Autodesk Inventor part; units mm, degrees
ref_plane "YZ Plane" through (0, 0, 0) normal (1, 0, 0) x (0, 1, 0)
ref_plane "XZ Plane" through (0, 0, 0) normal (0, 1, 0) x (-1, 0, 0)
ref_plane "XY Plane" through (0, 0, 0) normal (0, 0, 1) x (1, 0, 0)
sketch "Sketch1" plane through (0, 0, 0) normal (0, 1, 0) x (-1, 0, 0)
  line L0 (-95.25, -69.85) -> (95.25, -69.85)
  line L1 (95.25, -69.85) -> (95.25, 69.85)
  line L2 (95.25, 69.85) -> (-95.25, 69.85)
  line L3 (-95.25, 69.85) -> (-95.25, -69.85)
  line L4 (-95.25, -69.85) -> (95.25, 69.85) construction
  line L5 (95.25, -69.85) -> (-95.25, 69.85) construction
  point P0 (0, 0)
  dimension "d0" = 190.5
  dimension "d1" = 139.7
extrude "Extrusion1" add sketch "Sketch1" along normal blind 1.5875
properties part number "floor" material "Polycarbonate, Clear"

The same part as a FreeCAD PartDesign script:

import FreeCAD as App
import Part
import Sketcher
from FreeCAD import Vector
Q = App.Units.Quantity

doc = App.newDocument("Part")
body = doc.addObject("PartDesign::Body", "Body")

sketch1 = doc.addObject("Sketcher::SketchObject", "Sketch")
body.addObject(sketch1)
sketch1.AttachmentSupport = (doc.XZ_Plane, [""])
sketch1.MapMode = "FlatFace"
sketch1.addGeometry(Part.LineSegment(Vector(95, 70, 0), Vector(95, -70, 0)), False)
sketch1.addGeometry(Part.LineSegment(Vector(95, -70, 0), Vector(-95, -70, 0)), False)
sketch1.addGeometry(Part.LineSegment(Vector(-95, -70, 0), Vector(-95, 70, 0)), False)
sketch1.addGeometry(Part.LineSegment(Vector(-95, 70, 0), Vector(95, 70, 0)), False)
sketch1.addConstraint(Sketcher.Constraint("Coincident", 0, 2, 1, 1))
sketch1.addConstraint(Sketcher.Constraint("Coincident", 1, 2, 2, 1))
sketch1.addConstraint(Sketcher.Constraint("Coincident", 2, 2, 3, 1))
sketch1.addConstraint(Sketcher.Constraint("Coincident", 3, 2, 0, 1))
sketch1.addConstraint(Sketcher.Constraint("Vertical", 0))
sketch1.addConstraint(Sketcher.Constraint("Horizontal", 1))
sketch1.addConstraint(Sketcher.Constraint("Vertical", 2))
sketch1.addConstraint(Sketcher.Constraint("Horizontal", 3))
sketch1.addConstraint(Sketcher.Constraint("Symmetric", 0, 2, 2, 2, -1, 1))
sketch1.addConstraint(Sketcher.Constraint("DistanceX", 1, 2, 1, 1, Q("7.5 in")))
sketch1.addConstraint(Sketcher.Constraint("DistanceY", 0, 2, 0, 1, Q("5.5 in")))
pad1 = doc.addObject("PartDesign::Pad", "Pad")
body.addObject(pad1)
pad1.Profile = sketch1
pad1.Length = Q("0.0625 in")
pad1.Reversed = True

doc.recompute()
